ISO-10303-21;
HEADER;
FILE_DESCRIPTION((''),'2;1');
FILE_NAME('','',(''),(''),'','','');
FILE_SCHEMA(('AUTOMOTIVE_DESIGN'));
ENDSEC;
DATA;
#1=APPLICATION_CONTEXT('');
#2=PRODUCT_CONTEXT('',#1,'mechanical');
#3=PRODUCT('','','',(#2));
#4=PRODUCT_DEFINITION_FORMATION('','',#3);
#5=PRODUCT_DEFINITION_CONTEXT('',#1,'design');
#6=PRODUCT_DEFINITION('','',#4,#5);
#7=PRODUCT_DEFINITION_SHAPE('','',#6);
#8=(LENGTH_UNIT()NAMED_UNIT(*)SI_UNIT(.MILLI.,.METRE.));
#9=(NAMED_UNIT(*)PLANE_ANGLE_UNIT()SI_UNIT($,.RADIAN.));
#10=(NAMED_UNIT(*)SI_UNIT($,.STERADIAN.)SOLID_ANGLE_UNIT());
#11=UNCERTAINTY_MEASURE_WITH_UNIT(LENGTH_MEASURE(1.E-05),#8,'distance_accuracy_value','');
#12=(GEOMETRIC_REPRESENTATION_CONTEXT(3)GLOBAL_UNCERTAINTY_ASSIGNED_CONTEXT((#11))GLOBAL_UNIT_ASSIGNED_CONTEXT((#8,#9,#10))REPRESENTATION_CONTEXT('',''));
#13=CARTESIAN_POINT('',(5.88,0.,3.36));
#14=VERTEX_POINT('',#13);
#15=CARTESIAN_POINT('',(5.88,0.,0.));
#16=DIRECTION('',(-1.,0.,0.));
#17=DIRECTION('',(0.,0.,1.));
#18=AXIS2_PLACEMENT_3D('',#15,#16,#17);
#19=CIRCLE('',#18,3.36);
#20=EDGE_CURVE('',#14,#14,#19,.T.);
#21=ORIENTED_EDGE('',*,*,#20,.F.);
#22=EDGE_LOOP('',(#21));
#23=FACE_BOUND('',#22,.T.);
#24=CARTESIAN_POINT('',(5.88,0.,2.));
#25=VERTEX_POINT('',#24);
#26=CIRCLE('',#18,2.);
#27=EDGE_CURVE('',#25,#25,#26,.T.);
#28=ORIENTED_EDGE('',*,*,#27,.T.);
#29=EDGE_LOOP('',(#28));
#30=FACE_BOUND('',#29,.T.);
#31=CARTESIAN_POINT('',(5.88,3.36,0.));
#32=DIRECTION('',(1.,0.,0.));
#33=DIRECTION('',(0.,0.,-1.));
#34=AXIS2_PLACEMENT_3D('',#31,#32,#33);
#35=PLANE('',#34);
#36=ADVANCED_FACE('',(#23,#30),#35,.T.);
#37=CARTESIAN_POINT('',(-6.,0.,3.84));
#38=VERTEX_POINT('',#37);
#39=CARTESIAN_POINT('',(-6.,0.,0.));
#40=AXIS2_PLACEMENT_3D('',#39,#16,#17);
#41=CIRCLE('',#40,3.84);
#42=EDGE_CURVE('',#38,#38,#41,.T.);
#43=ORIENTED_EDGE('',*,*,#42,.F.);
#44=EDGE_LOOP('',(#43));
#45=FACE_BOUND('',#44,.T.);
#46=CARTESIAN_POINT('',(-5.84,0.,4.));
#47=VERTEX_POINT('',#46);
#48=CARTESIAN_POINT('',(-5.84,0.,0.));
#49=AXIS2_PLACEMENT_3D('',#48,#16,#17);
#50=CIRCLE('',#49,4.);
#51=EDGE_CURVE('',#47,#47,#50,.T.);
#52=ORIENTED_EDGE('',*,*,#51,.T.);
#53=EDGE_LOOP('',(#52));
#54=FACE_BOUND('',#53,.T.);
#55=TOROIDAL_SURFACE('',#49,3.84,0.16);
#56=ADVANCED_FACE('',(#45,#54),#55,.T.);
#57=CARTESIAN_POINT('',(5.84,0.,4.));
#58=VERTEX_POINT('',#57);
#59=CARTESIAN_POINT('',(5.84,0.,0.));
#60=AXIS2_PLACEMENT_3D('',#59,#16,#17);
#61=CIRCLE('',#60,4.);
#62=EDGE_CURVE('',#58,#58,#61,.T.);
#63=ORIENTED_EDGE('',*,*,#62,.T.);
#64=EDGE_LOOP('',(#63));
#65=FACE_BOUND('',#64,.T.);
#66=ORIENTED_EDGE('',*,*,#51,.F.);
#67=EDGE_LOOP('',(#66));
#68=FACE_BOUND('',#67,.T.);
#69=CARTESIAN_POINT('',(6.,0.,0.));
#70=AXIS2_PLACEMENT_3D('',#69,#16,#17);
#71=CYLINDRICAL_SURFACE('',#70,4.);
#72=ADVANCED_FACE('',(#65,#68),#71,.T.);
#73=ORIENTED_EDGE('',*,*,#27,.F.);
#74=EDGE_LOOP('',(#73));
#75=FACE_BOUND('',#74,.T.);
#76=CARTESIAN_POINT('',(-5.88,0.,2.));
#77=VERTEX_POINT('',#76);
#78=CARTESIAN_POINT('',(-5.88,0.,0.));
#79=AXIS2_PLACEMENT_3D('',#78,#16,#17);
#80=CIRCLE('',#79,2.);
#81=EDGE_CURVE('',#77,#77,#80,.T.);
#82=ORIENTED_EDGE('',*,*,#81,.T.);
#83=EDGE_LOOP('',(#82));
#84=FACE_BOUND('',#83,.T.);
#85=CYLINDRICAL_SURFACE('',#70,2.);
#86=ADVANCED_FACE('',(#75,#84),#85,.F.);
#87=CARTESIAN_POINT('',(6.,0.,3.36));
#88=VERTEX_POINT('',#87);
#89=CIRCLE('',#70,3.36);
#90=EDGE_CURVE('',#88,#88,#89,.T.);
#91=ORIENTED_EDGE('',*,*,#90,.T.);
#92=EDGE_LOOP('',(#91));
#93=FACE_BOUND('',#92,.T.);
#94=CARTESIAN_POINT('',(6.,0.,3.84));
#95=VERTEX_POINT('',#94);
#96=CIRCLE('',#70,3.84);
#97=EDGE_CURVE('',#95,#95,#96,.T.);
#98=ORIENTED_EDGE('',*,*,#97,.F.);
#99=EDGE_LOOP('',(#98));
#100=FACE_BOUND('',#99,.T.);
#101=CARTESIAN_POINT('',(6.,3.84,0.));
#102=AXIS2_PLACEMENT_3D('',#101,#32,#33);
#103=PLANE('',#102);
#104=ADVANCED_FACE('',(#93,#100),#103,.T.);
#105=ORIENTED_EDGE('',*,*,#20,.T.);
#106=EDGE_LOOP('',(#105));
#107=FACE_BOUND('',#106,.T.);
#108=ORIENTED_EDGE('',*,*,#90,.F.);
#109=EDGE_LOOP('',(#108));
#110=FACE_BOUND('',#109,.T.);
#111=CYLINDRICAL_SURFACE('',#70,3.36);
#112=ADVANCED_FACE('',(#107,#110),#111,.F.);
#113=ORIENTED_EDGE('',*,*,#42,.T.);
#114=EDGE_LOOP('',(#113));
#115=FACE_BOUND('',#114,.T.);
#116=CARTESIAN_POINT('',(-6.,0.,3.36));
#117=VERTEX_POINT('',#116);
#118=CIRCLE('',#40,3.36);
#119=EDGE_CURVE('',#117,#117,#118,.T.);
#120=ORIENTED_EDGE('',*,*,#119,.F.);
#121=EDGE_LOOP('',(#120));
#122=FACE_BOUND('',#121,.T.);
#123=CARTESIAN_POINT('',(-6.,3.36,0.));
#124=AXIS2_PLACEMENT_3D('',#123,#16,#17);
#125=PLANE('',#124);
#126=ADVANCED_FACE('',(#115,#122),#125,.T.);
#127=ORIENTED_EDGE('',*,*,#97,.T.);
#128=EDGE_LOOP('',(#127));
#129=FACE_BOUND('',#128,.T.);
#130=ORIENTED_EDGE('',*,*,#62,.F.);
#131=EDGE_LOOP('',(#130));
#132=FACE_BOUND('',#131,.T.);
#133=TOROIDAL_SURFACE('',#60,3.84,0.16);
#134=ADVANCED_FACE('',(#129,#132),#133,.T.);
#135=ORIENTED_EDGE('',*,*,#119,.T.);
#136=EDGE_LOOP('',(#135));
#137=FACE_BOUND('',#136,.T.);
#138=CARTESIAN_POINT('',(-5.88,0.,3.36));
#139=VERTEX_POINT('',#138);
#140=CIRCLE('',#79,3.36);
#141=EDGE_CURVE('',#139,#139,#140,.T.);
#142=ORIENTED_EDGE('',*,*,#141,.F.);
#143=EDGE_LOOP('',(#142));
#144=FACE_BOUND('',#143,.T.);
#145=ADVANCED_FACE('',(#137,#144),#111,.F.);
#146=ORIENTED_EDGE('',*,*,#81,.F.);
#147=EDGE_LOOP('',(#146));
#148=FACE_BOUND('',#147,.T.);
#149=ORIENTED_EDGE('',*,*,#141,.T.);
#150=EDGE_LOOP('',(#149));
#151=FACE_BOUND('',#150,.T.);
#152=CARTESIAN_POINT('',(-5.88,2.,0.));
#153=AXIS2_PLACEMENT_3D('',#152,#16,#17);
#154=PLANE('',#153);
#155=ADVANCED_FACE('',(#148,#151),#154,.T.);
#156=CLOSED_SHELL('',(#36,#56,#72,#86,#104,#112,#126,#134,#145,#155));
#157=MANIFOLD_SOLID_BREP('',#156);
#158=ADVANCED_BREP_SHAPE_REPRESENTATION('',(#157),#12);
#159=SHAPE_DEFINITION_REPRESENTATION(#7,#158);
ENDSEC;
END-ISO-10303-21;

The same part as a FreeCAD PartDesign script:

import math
import FreeCAD as App
import Part
import Sketcher

V = App.Vector

doc = App.newDocument("Part")
params = doc.addObject("Spreadsheet::Sheet", "Params")
for row, (alias, value) in enumerate([
    ("sketch1_radius", "0.16 mm"),
    ("sketch1_width", "0.12 mm"),
    ("sketch1_height", "0.48 mm"),
    ("revolution_angle", "360 deg"),
], start=1):
    params.set(f"A{row}", alias)
    params.set(f"B{row}", "=" + value)
    params.setAlias(f"B{row}", alias)

body = doc.addObject("PartDesign::Body", "Body")

# Sketch on XY plane
sketch1 = body.newObject("Sketcher::SketchObject", "Sketch")
sketch1.AttachmentSupport = (doc.getObject("XY_Plane"), [""])
sketch1.MapMode = "FlatFace"
sketch1.addGeometry(Part.LineSegment(V(-5.84, 4, 0), V(5.84, 4, 0)), False)
sketch1.addGeometry(Part.ArcOfCircle(Part.Circle(V(5.84, 3.84, 0), V(0, 0, 1), 0.16), math.radians(0), math.radians(90)), False)
sketch1.addGeometry(Part.LineSegment(V(6, 3.84, 0), V(6, 3.36, 0)), False)
sketch1.addGeometry(Part.LineSegment(V(6, 3.36, 0), V(5.88, 3.36, 0)), False)
sketch1.addGeometry(Part.LineSegment(V(5.88, 3.36, 0), V(5.88, 2, 0)), False)
sketch1.addGeometry(Part.LineSegment(V(5.88, 2, 0), V(-5.88, 2, 0)), False)
sketch1.addGeometry(Part.LineSegment(V(-5.88, 2, 0), V(-5.88, 3.36, 0)), False)
sketch1.addGeometry(Part.LineSegment(V(-5.88, 3.36, 0), V(-6, 3.36, 0)), False)
sketch1.addGeometry(Part.LineSegment(V(-6, 3.36, 0), V(-6, 3.84, 0)), False)
sketch1.addGeometry(Part.ArcOfCircle(Part.Circle(V(-5.84, 3.84, 0), V(0, 0, 1), 0.16), math.radians(90), math.radians(180)), False)
sketch1.addConstraint(Sketcher.Constraint("Tangent", 0, 2, 1, 2))
sketch1.addConstraint(Sketcher.Constraint("Tangent", 1, 1, 2, 1))
sketch1.addConstraint(Sketcher.Constraint("Coincident", 2, 2, 3, 1))
sketch1.addConstraint(Sketcher.Constraint("Coincident", 3, 2, 4, 1))
sketch1.addConstraint(Sketcher.Constraint("Coincident", 4, 2, 5, 1))
sketch1.addConstraint(Sketcher.Constraint("Coincident", 5, 2, 6, 1))
sketch1.addConstraint(Sketcher.Constraint("Coincident", 6, 2, 7, 1))
sketch1.addConstraint(Sketcher.Constraint("Coincident", 7, 2, 8, 1))
sketch1.addConstraint(Sketcher.Constraint("Tangent", 8, 2, 9, 2))
sketch1.addConstraint(Sketcher.Constraint("Tangent", 9, 1, 0, 1))
sketch1.addConstraint(Sketcher.Constraint("Horizontal", 0))
sketch1.addConstraint(Sketcher.Constraint("Vertical", 2))
sketch1.addConstraint(Sketcher.Constraint("Horizontal", 3))
sketch1.addConstraint(Sketcher.Constraint("Vertical", 4))
sketch1.addConstraint(Sketcher.Constraint("Horizontal", 5))
sketch1.addConstraint(Sketcher.Constraint("Vertical", 6))
sketch1.addConstraint(Sketcher.Constraint("Horizontal", 7))
sketch1.addConstraint(Sketcher.Constraint("Vertical", 8))
sketch1.addConstraint(Sketcher.Constraint("Equal", 1, 9))
sketch1.addConstraint(Sketcher.Constraint("Symmetric", 3, 2, 6, 2, -2))
sketch1.addConstraint(Sketcher.Constraint("Equal", 3, 7))
sketch1.addConstraint(Sketcher.Constraint("Radius", 1, 0.16))
sketch1.addConstraint(Sketcher.Constraint("DistanceY", -1, 1, 0, 2, 4.0))
sketch1.addConstraint(Sketcher.Constraint("DistanceX", -1, 1, 1, 1, 6.0))
sketch1.addConstraint(Sketcher.Constraint("DistanceY", -1, 1, 4, 2, 2.0))
sketch1.addConstraint(Sketcher.Constraint("DistanceX", 3, 2, 3, 1, 0.12))
sketch1.addConstraint(Sketcher.Constraint("DistanceY", 2, 2, 2, 1, 0.48))
sketch1.setExpression("Constraints[21]", "Params.sketch1_radius")
sketch1.setExpression("Constraints[25]", "Params.sketch1_width")
sketch1.setExpression("Constraints[26]", "Params.sketch1_height")
revolution = body.newObject("PartDesign::Revolution", "Revolution")
revolution.Profile = sketch1
revolution.ReferenceAxis = (sketch1, ["H_Axis"])
revolution.setExpression("Angle", "Params.revolution_angle")

doc.recompute()
